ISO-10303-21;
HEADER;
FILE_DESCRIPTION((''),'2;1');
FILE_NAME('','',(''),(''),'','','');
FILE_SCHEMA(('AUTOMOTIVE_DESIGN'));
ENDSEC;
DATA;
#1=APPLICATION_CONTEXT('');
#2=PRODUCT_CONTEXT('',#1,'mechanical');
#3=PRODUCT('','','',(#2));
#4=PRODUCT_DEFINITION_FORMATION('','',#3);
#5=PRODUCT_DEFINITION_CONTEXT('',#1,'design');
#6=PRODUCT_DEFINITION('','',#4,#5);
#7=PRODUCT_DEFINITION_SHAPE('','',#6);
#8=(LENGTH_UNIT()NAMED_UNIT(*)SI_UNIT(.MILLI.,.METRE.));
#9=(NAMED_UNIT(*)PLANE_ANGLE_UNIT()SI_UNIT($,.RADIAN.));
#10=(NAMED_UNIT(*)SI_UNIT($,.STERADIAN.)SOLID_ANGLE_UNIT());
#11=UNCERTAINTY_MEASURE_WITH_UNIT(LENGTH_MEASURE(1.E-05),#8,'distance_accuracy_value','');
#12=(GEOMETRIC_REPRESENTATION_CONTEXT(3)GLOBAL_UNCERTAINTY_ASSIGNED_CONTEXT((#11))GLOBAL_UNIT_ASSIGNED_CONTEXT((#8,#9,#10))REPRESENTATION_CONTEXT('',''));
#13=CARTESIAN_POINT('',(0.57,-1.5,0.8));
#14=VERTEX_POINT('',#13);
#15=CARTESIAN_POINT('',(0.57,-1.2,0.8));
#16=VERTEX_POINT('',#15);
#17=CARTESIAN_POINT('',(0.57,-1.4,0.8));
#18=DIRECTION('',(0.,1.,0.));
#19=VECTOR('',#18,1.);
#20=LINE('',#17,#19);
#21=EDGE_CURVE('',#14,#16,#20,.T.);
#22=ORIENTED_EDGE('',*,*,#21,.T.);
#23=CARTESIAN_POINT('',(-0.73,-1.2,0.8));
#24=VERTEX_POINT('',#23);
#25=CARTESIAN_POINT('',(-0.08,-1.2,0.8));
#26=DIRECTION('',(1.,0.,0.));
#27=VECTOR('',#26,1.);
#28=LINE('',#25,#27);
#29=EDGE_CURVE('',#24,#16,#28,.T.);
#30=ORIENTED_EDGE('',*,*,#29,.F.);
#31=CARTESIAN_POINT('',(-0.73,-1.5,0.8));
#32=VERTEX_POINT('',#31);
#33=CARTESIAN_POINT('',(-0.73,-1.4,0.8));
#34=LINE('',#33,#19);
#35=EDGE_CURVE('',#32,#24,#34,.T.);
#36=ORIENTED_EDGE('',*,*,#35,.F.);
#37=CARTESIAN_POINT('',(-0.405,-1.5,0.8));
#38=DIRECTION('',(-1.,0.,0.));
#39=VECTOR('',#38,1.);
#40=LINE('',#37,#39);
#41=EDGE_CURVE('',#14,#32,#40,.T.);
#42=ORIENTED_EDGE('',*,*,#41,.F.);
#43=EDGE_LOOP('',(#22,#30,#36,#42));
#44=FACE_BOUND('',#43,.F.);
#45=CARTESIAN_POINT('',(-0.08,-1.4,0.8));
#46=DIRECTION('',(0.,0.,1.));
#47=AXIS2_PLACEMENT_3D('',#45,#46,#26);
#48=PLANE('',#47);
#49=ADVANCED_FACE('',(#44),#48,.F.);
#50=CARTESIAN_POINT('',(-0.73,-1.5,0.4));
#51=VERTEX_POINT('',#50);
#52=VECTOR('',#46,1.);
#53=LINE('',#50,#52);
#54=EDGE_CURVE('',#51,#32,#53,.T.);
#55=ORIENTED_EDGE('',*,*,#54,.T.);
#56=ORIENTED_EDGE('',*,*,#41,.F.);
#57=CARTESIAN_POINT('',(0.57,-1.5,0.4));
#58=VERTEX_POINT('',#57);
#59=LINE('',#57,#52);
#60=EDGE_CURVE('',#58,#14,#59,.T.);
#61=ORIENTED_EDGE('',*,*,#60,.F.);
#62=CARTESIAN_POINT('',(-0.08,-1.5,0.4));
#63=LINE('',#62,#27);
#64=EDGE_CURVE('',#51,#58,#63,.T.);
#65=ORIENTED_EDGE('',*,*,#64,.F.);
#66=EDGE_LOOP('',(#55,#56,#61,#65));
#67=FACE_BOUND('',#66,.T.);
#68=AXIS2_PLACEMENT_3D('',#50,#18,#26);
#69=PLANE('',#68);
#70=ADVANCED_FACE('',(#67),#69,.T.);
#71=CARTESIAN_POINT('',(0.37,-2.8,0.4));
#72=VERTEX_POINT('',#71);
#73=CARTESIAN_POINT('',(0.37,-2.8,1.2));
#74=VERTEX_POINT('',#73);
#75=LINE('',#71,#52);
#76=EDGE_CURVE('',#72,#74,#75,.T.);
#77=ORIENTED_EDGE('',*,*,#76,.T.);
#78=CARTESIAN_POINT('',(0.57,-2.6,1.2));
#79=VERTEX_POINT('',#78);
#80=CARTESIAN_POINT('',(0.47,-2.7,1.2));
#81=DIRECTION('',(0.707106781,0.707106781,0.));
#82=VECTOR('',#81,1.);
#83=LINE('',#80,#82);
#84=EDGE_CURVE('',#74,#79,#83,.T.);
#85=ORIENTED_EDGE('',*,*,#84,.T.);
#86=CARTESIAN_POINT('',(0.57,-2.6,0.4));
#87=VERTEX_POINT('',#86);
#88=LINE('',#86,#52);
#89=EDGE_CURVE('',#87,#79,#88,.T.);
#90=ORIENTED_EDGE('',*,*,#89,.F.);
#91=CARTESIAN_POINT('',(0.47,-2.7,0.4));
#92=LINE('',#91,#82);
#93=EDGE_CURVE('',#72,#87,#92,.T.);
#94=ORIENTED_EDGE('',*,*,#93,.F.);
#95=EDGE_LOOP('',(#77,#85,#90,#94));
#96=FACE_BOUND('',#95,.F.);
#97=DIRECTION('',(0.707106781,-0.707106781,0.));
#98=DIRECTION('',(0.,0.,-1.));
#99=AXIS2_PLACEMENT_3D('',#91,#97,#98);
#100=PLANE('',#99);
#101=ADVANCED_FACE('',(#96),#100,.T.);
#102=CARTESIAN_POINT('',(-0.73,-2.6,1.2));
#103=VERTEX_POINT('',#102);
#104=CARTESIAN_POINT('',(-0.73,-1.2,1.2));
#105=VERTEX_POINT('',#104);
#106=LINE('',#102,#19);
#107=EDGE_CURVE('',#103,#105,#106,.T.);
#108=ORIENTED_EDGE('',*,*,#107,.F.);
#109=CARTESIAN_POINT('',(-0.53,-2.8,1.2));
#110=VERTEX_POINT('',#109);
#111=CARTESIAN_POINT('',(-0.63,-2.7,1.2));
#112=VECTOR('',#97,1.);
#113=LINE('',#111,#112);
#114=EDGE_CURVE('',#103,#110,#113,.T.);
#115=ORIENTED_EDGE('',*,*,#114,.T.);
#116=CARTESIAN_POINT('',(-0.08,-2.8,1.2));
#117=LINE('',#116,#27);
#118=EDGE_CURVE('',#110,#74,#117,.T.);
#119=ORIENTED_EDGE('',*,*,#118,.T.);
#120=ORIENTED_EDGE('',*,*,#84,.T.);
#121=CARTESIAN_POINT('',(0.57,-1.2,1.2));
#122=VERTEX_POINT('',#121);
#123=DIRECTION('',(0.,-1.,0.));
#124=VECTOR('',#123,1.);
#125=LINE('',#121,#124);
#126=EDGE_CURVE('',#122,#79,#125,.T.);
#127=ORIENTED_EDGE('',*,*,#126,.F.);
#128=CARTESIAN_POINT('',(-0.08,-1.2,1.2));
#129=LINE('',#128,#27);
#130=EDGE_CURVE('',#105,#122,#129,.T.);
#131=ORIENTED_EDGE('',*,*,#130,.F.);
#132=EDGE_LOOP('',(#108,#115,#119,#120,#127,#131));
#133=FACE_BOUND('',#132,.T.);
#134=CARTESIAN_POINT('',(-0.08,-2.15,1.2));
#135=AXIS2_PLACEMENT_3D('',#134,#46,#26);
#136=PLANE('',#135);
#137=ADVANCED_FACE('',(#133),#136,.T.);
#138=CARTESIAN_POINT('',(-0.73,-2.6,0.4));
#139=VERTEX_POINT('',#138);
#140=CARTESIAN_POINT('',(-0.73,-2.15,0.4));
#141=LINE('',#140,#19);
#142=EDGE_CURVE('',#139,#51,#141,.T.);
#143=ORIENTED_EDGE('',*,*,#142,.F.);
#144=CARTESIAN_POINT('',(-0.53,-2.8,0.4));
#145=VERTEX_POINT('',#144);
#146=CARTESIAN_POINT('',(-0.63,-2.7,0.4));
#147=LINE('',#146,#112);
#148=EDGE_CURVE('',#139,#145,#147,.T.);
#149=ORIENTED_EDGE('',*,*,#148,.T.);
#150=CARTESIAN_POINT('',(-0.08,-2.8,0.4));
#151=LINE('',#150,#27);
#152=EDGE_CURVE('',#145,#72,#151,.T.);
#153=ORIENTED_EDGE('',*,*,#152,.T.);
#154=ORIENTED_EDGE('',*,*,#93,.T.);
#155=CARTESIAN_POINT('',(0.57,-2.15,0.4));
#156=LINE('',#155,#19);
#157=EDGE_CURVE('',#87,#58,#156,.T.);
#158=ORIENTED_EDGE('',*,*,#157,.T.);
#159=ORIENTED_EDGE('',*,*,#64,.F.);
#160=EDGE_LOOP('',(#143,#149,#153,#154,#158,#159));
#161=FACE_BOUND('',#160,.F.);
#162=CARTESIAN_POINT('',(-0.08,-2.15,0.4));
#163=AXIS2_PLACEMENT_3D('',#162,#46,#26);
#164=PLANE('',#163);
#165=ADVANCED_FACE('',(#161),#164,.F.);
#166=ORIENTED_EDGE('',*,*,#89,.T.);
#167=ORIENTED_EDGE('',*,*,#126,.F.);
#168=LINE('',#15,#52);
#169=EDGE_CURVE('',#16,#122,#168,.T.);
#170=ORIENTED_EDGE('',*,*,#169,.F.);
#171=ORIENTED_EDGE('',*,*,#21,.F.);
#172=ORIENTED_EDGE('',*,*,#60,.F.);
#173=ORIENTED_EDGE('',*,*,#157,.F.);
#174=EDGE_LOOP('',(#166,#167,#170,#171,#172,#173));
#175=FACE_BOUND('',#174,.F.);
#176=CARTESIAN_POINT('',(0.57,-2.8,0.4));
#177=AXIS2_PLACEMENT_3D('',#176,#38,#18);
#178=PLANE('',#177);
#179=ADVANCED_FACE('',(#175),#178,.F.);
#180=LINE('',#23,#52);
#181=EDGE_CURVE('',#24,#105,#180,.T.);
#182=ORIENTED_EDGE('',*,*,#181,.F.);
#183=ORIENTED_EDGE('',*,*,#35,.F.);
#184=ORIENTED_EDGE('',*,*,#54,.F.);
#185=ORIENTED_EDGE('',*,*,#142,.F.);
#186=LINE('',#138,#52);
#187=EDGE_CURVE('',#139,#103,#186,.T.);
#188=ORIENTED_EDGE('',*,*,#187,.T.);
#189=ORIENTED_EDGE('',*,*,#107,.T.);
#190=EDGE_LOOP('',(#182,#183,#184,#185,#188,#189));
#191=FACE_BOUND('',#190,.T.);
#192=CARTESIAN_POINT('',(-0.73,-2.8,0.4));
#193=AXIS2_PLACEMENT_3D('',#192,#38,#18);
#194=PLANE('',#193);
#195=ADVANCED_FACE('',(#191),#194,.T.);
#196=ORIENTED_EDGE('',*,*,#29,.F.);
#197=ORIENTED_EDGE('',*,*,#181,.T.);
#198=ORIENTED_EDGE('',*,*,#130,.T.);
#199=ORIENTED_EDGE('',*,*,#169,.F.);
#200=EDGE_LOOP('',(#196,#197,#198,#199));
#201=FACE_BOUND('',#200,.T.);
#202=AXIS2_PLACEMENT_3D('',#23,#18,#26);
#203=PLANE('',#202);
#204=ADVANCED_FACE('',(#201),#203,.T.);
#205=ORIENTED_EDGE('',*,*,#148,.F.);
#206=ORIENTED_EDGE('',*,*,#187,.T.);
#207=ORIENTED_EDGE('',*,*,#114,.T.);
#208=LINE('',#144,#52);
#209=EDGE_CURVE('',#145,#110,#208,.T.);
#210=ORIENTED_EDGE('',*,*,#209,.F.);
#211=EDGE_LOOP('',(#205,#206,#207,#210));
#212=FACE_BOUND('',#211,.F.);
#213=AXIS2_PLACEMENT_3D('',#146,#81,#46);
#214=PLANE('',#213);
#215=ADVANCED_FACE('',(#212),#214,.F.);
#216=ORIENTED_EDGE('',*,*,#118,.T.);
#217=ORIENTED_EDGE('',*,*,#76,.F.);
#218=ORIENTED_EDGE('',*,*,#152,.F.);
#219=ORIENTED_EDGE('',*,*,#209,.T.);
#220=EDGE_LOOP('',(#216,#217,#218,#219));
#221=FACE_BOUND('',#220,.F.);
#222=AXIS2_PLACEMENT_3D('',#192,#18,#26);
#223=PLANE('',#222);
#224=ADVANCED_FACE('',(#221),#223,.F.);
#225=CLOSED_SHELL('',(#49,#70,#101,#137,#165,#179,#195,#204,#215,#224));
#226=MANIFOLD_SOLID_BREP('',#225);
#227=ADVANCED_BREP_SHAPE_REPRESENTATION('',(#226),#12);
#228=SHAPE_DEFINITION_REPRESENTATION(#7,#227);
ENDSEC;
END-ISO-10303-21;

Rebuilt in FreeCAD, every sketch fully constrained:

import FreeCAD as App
import Part
import Sketcher
from FreeCAD import Vector
Q = App.Units.Quantity


def edges_at(feature, points):
    """Names of the edges that pass closest to the given points."""
    edges = feature.Shape.Edges
    near = lambda p: min(range(len(edges)), key=lambda i: edges[i].distToShape(Part.Vertex(*p))[0])
    return sorted({f"Edge{near(p) + 1}" for p in points})

doc = App.newDocument("Part")
body = doc.addObject("PartDesign::Body", "Body")

# Sketch on XY plane
sketch1 = doc.addObject("Sketcher::SketchObject", "Sketch")
body.addObject(sketch1)
sketch1.AttachmentSupport = (doc.XY_Plane, [""])
sketch1.MapMode = "FlatFace"
sketch1.AttachmentOffset = App.Placement(Vector(0, 0, 0.4), App.Rotation())
sketch1.addGeometry(Part.LineSegment(Vector(-0.1, -1.5, 0), Vector(-0.1, -2.8, 0)), False)
sketch1.addGeometry(Part.LineSegment(Vector(-0.1, -2.8, 0), Vector(1.2, -2.8, 0)), False)
sketch1.addGeometry(Part.LineSegment(Vector(1.2, -2.8, 0), Vector(1.2, -1.5, 0)), False)
sketch1.addGeometry(Part.LineSegment(Vector(1.2, -1.5, 0), Vector(-0.1, -1.5, 0)), False)
sketch1.addConstraint(Sketcher.Constraint("Coincident", 0, 2, 1, 1))
sketch1.addConstraint(Sketcher.Constraint("Coincident", 1, 2, 2, 1))
sketch1.addConstraint(Sketcher.Constraint("Coincident", 2, 2, 3, 1))
sketch1.addConstraint(Sketcher.Constraint("Coincident", 3, 2, 0, 1))
sketch1.addConstraint(Sketcher.Constraint("Vertical", 0))
sketch1.addConstraint(Sketcher.Constraint("Horizontal", 1))
sketch1.addConstraint(Sketcher.Constraint("Vertical", 2))
sketch1.addConstraint(Sketcher.Constraint("Horizontal", 3))
sketch1.addConstraint(Sketcher.Constraint("Equal", 3, 0))
sketch1.addConstraint(Sketcher.Constraint("DistanceX", 1, 1, 1, 2, Q("1.3 mm")))
sketch1.addConstraint(Sketcher.Constraint("DistanceY", 0, 2, -1, 1, Q("2.8 mm")))
sketch1.addConstraint(Sketcher.Constraint("DistanceX", 0, 2, -1, 1, Q("0.08 mm")))
pad1 = doc.addObject("PartDesign::Pad", "Pad")
body.addObject(pad1)
pad1.Profile = sketch1
pad1.Length = 0.8
doc.recompute()

chamfer = doc.addObject("PartDesign::Chamfer", "Chamfer")
body.addObject(chamfer)
chamfer.Base = (pad1, edges_at(pad1, [(-0.08, -2.8, 0.8)]))
chamfer.Size = 0.2
doc.recompute()

chamfer2 = doc.addObject("PartDesign::Chamfer", "Chamfer001")
body.addObject(chamfer2)
chamfer2.Base = (chamfer, edges_at(chamfer, [(1.22, -2.8, 0.8)]))
chamfer2.Size = 0.2
body2 = doc.addObject("PartDesign::Body", "Body001")

# Sketch on XY plane
sketch2 = doc.addObject("Sketcher::SketchObject", "Sketch001")
body2.addObject(sketch2)
sketch2.AttachmentSupport = (doc.getObject("XY_Plane001"), [""])
sketch2.MapMode = "FlatFace"
sketch2.AttachmentOffset = App.Placement(Vector(0, 0, 0.8), App.Rotation())
sketch2.addGeometry(Part.LineSegment(Vector(-0.08, -1.2, 0), Vector(-0.08, -1.6, 0)), False)
sketch2.addGeometry(Part.LineSegment(Vector(-0.08, -1.6, 0), Vector(1.22, -1.6, 0)), False)
sketch2.addGeometry(Part.LineSegment(Vector(1.22, -1.6, 0), Vector(1.22, -1.2, 0)), False)
sketch2.addGeometry(Part.LineSegment(Vector(1.22, -1.2, 0), Vector(-0.08, -1.2, 0)), False)
sketch2.addConstraint(Sketcher.Constraint("Coincident", 0, 2, 1, 1))
sketch2.addConstraint(Sketcher.Constraint("Coincident", 1, 2, 2, 1))
sketch2.addConstraint(Sketcher.Constraint("Coincident", 2, 2, 3, 1))
sketch2.addConstraint(Sketcher.Constraint("Coincident", 3, 2, 0, 1))
sketch2.addConstraint(Sketcher.Constraint("Vertical", 0))
sketch2.addConstraint(Sketcher.Constraint("Horizontal", 1))
sketch2.addConstraint(Sketcher.Constraint("Vertical", 2))
sketch2.addConstraint(Sketcher.Constraint("Horizontal", 3))
sketch2.addConstraint(Sketcher.Constraint("DistanceX", 1, 1, 1, 2, Q("1.3 mm")))
sketch2.addConstraint(Sketcher.Constraint("DistanceY", 0, 2, 0, 1, Q("0.4 mm")))
sketch2.addConstraint(Sketcher.Constraint("DistanceY", 0, 2, -1, 1, Q("1.6 mm")))
sketch2.addConstraint(Sketcher.Constraint("DistanceX", 0, 2, -1, 1, Q("0.08 mm")))
pad2 = doc.addObject("PartDesign::Pad", "Pad001")
body2.addObject(pad2)
pad2.Profile = sketch2
pad2.Length = 0.4
doc.recompute()

boolean = doc.addObject("PartDesign::Boolean", "Boolean")
body2.addObject(boolean)
boolean.Type = "Fuse"
boolean.addObjects([body])
body3 = doc.addObject("PartDesign::Body", "Body002")
doc.recompute()

body2.Placement = App.Placement(Vector(-0.65, 0, 0), App.Rotation(Vector(0, 0, 1), 0))
boolean2 = doc.addObject("PartDesign::Boolean", "Boolean001")
body3.addObject(boolean2)
boolean2.Type = "Fuse"
boolean2.addObjects([body2])

doc.recompute()
